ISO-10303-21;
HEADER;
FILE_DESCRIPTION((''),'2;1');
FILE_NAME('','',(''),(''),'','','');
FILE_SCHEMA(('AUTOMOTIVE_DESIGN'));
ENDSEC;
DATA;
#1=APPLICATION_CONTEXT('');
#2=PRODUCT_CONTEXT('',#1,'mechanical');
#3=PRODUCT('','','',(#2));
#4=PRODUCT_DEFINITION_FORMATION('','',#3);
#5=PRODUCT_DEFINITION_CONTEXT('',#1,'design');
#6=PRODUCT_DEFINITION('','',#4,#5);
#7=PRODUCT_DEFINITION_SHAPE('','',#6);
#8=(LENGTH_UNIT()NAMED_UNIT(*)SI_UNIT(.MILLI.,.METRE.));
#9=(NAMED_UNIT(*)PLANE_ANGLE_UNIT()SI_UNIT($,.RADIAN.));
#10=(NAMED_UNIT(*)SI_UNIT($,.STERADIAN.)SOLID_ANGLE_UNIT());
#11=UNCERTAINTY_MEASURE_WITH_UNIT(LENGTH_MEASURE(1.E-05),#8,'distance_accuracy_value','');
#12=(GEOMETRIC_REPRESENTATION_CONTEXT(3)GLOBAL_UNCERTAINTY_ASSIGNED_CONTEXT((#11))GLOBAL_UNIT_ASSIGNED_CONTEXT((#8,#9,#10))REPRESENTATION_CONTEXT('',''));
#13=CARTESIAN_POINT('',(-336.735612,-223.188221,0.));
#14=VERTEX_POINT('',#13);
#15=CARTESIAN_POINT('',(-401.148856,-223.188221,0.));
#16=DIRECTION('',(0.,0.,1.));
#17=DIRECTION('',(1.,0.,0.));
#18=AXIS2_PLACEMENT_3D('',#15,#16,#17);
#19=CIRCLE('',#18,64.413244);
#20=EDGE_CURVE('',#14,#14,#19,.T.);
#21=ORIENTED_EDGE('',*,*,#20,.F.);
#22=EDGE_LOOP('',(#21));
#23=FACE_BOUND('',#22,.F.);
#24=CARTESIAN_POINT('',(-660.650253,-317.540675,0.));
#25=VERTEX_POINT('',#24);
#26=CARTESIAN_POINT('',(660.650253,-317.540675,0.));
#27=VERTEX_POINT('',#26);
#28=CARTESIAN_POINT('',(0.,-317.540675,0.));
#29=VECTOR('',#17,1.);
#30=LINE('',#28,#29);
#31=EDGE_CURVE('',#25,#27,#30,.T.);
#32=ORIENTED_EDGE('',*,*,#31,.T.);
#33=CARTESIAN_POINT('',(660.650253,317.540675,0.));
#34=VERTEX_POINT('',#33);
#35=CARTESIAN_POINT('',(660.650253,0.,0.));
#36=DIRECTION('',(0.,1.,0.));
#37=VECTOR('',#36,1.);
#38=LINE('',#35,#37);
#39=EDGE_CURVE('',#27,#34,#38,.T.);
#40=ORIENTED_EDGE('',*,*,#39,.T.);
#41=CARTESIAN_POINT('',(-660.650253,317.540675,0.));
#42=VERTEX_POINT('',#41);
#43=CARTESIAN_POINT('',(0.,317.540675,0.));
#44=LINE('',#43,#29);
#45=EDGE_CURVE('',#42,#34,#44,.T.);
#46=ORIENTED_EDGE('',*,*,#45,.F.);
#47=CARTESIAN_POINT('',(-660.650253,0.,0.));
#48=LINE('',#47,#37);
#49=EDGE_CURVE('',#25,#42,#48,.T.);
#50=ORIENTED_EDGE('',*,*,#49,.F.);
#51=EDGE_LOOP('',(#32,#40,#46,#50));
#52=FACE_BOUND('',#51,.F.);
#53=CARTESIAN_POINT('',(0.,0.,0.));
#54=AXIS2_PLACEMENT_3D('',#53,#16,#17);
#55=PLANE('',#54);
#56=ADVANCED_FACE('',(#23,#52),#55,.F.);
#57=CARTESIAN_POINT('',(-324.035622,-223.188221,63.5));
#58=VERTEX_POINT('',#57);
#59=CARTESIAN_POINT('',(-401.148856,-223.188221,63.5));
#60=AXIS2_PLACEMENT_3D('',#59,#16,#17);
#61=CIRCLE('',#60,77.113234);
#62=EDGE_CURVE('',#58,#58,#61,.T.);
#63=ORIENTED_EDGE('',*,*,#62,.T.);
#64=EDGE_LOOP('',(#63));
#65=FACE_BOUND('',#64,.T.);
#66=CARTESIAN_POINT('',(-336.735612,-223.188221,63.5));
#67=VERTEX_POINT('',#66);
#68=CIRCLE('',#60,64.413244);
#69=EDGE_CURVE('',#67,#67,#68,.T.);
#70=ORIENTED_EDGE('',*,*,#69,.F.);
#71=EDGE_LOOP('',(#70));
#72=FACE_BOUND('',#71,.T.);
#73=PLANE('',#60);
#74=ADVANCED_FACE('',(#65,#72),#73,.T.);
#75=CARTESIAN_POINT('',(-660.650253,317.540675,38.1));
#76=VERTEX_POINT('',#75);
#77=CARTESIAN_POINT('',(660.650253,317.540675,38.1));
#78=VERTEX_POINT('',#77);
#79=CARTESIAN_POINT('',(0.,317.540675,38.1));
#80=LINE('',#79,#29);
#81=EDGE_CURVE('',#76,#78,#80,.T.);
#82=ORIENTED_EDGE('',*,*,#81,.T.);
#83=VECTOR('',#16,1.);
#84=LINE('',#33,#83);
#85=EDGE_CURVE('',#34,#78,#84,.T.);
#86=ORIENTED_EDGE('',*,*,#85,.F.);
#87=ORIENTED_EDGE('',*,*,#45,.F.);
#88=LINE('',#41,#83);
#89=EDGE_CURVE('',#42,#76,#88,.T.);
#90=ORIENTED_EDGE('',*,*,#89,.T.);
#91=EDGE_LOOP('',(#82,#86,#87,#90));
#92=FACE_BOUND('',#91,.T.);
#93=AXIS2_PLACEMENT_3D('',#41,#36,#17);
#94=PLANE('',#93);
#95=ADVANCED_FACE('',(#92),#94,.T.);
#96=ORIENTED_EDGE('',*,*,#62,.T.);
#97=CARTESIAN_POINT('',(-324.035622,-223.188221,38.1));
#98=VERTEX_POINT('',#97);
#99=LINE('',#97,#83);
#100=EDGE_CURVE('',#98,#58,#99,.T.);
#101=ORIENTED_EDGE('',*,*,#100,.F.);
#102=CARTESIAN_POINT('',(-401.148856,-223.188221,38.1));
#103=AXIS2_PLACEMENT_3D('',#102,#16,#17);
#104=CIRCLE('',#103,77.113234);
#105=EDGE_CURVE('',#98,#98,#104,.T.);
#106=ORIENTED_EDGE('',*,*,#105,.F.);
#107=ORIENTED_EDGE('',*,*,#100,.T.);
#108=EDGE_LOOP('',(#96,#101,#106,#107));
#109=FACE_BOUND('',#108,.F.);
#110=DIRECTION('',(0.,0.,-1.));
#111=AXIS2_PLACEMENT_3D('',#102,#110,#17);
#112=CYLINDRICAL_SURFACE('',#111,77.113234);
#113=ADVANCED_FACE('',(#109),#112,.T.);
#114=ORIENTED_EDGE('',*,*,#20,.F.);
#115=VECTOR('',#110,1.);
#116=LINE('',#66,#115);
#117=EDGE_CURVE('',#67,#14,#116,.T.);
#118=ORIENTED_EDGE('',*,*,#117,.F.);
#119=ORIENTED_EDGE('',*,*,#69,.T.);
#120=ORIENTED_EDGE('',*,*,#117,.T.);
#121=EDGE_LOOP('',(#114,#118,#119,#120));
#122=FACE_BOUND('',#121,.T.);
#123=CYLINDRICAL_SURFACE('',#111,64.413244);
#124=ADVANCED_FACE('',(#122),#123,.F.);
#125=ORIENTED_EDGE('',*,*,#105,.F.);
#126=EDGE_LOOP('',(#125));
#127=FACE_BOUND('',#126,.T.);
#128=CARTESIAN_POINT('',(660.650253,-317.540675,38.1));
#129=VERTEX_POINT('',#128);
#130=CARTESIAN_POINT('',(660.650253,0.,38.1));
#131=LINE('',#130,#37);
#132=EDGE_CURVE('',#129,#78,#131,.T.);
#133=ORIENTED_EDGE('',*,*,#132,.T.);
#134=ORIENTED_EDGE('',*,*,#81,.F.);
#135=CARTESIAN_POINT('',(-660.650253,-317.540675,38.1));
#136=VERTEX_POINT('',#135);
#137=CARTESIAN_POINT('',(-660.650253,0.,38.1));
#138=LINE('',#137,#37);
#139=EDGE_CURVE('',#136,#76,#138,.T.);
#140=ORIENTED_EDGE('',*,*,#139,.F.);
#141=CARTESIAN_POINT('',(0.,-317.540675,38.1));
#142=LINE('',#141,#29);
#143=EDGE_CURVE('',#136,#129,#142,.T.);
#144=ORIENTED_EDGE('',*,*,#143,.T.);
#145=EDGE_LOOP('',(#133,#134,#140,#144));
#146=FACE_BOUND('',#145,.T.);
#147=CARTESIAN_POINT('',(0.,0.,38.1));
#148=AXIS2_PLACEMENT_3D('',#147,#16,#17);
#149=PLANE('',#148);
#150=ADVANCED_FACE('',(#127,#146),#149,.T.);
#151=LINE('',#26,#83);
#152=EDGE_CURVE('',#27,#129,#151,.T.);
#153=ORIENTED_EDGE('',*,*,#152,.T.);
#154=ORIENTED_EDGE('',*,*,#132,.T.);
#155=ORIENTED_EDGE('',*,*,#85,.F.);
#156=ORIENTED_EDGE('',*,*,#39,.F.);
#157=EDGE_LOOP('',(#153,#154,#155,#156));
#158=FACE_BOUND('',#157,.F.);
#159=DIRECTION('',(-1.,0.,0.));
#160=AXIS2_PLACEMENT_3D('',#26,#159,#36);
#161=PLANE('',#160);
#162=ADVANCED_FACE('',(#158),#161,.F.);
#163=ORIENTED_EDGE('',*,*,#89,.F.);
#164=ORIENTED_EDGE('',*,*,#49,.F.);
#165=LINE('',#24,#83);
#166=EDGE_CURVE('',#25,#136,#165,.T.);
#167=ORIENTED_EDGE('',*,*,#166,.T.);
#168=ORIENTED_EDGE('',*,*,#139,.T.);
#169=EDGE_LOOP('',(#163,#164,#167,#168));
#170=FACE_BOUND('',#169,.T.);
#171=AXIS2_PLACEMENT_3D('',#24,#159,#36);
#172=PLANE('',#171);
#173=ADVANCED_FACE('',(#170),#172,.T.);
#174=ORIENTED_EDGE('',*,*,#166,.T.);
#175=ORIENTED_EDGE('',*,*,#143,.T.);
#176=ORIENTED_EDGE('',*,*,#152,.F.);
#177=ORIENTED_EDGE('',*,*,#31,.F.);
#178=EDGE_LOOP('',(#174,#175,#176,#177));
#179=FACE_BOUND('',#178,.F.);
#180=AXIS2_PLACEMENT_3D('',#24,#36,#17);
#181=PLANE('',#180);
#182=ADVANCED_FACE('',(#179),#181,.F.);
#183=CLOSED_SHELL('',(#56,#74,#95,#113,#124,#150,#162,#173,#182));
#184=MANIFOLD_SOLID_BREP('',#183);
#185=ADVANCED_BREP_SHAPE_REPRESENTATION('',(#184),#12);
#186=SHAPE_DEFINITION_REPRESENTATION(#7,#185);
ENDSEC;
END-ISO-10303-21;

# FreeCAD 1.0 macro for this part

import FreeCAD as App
import Part
import Sketcher
from FreeCAD import Vector
Q = App.Units.Quantity


def add_polygon(sketch, points):
    """Adds a closed chain of lines whose ends are joined by coincident constraints."""
    first, n = sketch.GeometryCount, len(points)
    for a, b in zip(points, points[1:] + points[:1]):
        sketch.addGeometry(Part.LineSegment(App.Vector(*a, 0), App.Vector(*b, 0)), False)
    for i in range(n):
        sketch.addConstraint(Sketcher.Constraint("Coincident", first + i, 2, first + (i + 1) % n, 1))

doc = App.newDocument("Part")
body = doc.addObject("PartDesign::Body", "Body")

# Sketch on XY plane
sketch1 = body.newObject("Sketcher::SketchObject", "Sketch")
sketch1.AttachmentSupport = (doc.getObject("XY_Plane"), [""])
sketch1.MapMode = "FlatFace"
add_polygon(sketch1, [(-660.650253, 317.540675), (-660.650253, -317.540675), (660.650253, -317.540675), (660.650253, 317.540675)])  # lines 0-3
sketch1.addGeometry(Part.Circle(Vector(-401.148856, -223.188221, 0), Vector(0, 0, 1), 64.413244), False)  # 4
sketch1.addConstraint([
    Sketcher.Constraint("Vertical", 0),
    Sketcher.Constraint("Horizontal", 1),
    Sketcher.Constraint("Vertical", 2),
    Sketcher.Constraint("Horizontal", 3),
    Sketcher.Constraint("Symmetric", 0, 2, 2, 2, -1, 1),
    Sketcher.Constraint("Diameter", 4, Q("128.826488 mm")),
    Sketcher.Constraint("DistanceY", 0, 2, 0, 1, Q("635.08135 mm")),
    Sketcher.Constraint("DistanceX", 1, 1, 1, 2, Q("1321.300506 mm")),
    Sketcher.Constraint("DistanceY", 4, 3, -1, 1, Q("223.188221 mm")),
    Sketcher.Constraint("DistanceX", 4, 3, 1, 2, Q("1061.799109 mm")),
])
pad1 = body.newObject("PartDesign::Pad", "Pad")
pad1.Profile = sketch1
pad1.Length = Q("1.5 in")

# Sketch on XY plane
sketch2 = body.newObject("Sketcher::SketchObject", "Sketch001")
sketch2.AttachmentSupport = (doc.getObject("XY_Plane"), [""])
sketch2.MapMode = "FlatFace"
sketch2.AttachmentOffset = App.Placement(Vector(0, 0, 1.5 * 25.4), App.Rotation())
sketch2.addGeometry([
    Part.Circle(Vector(-401.148856, -223.188221, 0), Vector(0, 0, 1), 77.113234),
    Part.Circle(Vector(-401.148856, -223.188221, 0), Vector(0, 0, 1), 64.413244),
], False)
sketch2.addConstraint([
    Sketcher.Constraint("Coincident", 1, 3, 0, 3),
    Sketcher.Constraint("Diameter", 0, Q("154.226468 mm")),
    Sketcher.Constraint("Diameter", 1, Q("128.826488 mm")),
    Sketcher.Constraint("DistanceY", 0, 3, -1, 1, Q("223.188221 mm")),
    Sketcher.Constraint("DistanceX", 0, 3, -1, 1, Q("401.148856 mm")),
])
pad2 = body.newObject("PartDesign::Pad", "Pad001")
pad2.Profile = sketch2
pad2.Length = Q("1 in")

doc.recompute()
